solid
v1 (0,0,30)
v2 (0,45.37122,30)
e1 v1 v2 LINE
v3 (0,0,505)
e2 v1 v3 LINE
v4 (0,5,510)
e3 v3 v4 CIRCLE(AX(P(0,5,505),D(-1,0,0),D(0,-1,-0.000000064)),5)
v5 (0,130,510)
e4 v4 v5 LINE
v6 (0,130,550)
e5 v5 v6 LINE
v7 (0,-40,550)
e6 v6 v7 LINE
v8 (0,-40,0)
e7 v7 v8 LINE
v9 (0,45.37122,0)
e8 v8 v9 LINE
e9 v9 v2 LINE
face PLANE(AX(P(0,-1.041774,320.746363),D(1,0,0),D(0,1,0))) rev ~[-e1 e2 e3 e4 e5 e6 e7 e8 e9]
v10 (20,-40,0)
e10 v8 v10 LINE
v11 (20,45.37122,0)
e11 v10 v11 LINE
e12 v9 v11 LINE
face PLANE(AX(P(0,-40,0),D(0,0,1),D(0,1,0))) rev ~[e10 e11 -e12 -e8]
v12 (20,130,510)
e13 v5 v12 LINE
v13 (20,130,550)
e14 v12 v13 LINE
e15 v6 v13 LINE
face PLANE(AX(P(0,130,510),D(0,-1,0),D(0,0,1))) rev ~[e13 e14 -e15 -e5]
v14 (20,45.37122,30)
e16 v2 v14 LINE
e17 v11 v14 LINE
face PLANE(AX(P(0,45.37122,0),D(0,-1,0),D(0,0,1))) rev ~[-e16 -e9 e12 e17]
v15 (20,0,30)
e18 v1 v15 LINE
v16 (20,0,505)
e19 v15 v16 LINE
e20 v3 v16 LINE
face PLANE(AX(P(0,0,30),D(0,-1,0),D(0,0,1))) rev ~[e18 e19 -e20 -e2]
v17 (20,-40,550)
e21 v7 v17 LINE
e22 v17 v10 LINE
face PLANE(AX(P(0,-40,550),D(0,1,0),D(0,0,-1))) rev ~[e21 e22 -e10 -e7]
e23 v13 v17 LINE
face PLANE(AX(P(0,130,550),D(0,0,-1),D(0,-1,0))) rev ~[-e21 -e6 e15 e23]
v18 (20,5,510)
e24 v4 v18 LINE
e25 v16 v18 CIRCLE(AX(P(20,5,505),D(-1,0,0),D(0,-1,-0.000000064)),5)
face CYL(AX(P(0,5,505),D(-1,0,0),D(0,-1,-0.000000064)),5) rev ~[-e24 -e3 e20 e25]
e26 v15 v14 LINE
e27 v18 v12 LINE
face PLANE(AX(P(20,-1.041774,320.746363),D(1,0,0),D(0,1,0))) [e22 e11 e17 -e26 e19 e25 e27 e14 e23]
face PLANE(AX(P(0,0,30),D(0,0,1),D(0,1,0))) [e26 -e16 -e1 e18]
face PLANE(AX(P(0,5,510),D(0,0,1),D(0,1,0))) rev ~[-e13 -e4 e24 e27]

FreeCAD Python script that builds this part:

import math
import FreeCAD as App
import Part
import Sketcher
from FreeCAD import Vector
Q = App.Units.Quantity

doc = App.newDocument("Part")
body = doc.addObject("PartDesign::Body", "Body")

# Sketch on YZ plane
sketch1 = body.newObject("Sketcher::SketchObject", "Sketch")
sketch1.AttachmentSupport = (doc.getObject("YZ_Plane"), [""])
sketch1.MapMode = "FlatFace"
sketch1.addGeometry(Part.LineSegment(Vector(-40, 550, 0), Vector(-40, 0, 0)), False)
sketch1.addGeometry(Part.LineSegment(Vector(-40, 0, 0), Vector(45.4, 0, 0)), False)
sketch1.addGeometry(Part.LineSegment(Vector(45.4, 0, 0), Vector(45.4, 30, 0)), False)
sketch1.addGeometry(Part.LineSegment(Vector(45.4, 30, 0), Vector(0, 30, 0)), False)
sketch1.addGeometry(Part.LineSegment(Vector(0, 30, 0), Vector(0, 505, 0)), False)
sketch1.addGeometry(Part.ArcOfCircle(Part.Circle(Vector(5, 505, 0), Vector(0, 0, 1), 5), math.radians(90), math.radians(180)), False)
sketch1.addGeometry(Part.LineSegment(Vector(5, 510, 0), Vector(130, 510, 0)), False)
sketch1.addGeometry(Part.LineSegment(Vector(130, 510, 0), Vector(130, 550, 0)), False)
sketch1.addGeometry(Part.LineSegment(Vector(130, 550, 0), Vector(-40, 550, 0)), False)
sketch1.addConstraint(Sketcher.Constraint("Coincident", 0, 2, 1, 1))
sketch1.addConstraint(Sketcher.Constraint("Coincident", 1, 2, 2, 1))
sketch1.addConstraint(Sketcher.Constraint("Coincident", 2, 2, 3, 1))
sketch1.addConstraint(Sketcher.Constraint("Coincident", 3, 2, 4, 1))
sketch1.addConstraint(Sketcher.Constraint("Tangent", 4, 2, 5, 2))
sketch1.addConstraint(Sketcher.Constraint("Tangent", 5, 1, 6, 1))
sketch1.addConstraint(Sketcher.Constraint("Coincident", 6, 2, 7, 1))
sketch1.addConstraint(Sketcher.Constraint("Coincident", 7, 2, 8, 1))
sketch1.addConstraint(Sketcher.Constraint("Coincident", 8, 2, 0, 1))
sketch1.addConstraint(Sketcher.Constraint("Vertical", 0))
sketch1.addConstraint(Sketcher.Constraint("Horizontal", 1))
sketch1.addConstraint(Sketcher.Constraint("Vertical", 2))
sketch1.addConstraint(Sketcher.Constraint("Horizontal", 3))
sketch1.addConstraint(Sketcher.Constraint("Vertical", 4))
sketch1.addConstraint(Sketcher.Constraint("Horizontal", 6))
sketch1.addConstraint(Sketcher.Constraint("Vertical", 7))
sketch1.addConstraint(Sketcher.Constraint("Horizontal", 8))
sketch1.addConstraint(Sketcher.Constraint("PointOnObject", 0, 2, -1))
sketch1.addConstraint(Sketcher.Constraint("PointOnObject", 3, 2, -2))
sketch1.addConstraint(Sketcher.Constraint("Radius", 5, Q("5 mm")))
sketch1.addConstraint(Sketcher.Constraint("DistanceX", 6, 1, 6, 2, Q("125 mm")))
sketch1.addConstraint(Sketcher.Constraint("DistanceX", 8, 2, 8, 1, Q("170 mm")))
sketch1.addConstraint(Sketcher.Constraint("DistanceY", 0, 2, 0, 1, Q("550 mm")))
sketch1.addConstraint(Sketcher.Constraint("DistanceY", 2, 1, 2, 2, Q("30 mm")))
sketch1.addConstraint(Sketcher.Constraint("DistanceY", 4, 1, 4, 2, Q("475 mm")))
sketch1.addConstraint(Sketcher.Constraint("DistanceX", 1, 1, 1, 2, Q("85.37122 mm")))
pad1 = body.newObject("PartDesign::Pad", "Pad")
pad1.Profile = sketch1
pad1.Length = 20

doc.recompute()
